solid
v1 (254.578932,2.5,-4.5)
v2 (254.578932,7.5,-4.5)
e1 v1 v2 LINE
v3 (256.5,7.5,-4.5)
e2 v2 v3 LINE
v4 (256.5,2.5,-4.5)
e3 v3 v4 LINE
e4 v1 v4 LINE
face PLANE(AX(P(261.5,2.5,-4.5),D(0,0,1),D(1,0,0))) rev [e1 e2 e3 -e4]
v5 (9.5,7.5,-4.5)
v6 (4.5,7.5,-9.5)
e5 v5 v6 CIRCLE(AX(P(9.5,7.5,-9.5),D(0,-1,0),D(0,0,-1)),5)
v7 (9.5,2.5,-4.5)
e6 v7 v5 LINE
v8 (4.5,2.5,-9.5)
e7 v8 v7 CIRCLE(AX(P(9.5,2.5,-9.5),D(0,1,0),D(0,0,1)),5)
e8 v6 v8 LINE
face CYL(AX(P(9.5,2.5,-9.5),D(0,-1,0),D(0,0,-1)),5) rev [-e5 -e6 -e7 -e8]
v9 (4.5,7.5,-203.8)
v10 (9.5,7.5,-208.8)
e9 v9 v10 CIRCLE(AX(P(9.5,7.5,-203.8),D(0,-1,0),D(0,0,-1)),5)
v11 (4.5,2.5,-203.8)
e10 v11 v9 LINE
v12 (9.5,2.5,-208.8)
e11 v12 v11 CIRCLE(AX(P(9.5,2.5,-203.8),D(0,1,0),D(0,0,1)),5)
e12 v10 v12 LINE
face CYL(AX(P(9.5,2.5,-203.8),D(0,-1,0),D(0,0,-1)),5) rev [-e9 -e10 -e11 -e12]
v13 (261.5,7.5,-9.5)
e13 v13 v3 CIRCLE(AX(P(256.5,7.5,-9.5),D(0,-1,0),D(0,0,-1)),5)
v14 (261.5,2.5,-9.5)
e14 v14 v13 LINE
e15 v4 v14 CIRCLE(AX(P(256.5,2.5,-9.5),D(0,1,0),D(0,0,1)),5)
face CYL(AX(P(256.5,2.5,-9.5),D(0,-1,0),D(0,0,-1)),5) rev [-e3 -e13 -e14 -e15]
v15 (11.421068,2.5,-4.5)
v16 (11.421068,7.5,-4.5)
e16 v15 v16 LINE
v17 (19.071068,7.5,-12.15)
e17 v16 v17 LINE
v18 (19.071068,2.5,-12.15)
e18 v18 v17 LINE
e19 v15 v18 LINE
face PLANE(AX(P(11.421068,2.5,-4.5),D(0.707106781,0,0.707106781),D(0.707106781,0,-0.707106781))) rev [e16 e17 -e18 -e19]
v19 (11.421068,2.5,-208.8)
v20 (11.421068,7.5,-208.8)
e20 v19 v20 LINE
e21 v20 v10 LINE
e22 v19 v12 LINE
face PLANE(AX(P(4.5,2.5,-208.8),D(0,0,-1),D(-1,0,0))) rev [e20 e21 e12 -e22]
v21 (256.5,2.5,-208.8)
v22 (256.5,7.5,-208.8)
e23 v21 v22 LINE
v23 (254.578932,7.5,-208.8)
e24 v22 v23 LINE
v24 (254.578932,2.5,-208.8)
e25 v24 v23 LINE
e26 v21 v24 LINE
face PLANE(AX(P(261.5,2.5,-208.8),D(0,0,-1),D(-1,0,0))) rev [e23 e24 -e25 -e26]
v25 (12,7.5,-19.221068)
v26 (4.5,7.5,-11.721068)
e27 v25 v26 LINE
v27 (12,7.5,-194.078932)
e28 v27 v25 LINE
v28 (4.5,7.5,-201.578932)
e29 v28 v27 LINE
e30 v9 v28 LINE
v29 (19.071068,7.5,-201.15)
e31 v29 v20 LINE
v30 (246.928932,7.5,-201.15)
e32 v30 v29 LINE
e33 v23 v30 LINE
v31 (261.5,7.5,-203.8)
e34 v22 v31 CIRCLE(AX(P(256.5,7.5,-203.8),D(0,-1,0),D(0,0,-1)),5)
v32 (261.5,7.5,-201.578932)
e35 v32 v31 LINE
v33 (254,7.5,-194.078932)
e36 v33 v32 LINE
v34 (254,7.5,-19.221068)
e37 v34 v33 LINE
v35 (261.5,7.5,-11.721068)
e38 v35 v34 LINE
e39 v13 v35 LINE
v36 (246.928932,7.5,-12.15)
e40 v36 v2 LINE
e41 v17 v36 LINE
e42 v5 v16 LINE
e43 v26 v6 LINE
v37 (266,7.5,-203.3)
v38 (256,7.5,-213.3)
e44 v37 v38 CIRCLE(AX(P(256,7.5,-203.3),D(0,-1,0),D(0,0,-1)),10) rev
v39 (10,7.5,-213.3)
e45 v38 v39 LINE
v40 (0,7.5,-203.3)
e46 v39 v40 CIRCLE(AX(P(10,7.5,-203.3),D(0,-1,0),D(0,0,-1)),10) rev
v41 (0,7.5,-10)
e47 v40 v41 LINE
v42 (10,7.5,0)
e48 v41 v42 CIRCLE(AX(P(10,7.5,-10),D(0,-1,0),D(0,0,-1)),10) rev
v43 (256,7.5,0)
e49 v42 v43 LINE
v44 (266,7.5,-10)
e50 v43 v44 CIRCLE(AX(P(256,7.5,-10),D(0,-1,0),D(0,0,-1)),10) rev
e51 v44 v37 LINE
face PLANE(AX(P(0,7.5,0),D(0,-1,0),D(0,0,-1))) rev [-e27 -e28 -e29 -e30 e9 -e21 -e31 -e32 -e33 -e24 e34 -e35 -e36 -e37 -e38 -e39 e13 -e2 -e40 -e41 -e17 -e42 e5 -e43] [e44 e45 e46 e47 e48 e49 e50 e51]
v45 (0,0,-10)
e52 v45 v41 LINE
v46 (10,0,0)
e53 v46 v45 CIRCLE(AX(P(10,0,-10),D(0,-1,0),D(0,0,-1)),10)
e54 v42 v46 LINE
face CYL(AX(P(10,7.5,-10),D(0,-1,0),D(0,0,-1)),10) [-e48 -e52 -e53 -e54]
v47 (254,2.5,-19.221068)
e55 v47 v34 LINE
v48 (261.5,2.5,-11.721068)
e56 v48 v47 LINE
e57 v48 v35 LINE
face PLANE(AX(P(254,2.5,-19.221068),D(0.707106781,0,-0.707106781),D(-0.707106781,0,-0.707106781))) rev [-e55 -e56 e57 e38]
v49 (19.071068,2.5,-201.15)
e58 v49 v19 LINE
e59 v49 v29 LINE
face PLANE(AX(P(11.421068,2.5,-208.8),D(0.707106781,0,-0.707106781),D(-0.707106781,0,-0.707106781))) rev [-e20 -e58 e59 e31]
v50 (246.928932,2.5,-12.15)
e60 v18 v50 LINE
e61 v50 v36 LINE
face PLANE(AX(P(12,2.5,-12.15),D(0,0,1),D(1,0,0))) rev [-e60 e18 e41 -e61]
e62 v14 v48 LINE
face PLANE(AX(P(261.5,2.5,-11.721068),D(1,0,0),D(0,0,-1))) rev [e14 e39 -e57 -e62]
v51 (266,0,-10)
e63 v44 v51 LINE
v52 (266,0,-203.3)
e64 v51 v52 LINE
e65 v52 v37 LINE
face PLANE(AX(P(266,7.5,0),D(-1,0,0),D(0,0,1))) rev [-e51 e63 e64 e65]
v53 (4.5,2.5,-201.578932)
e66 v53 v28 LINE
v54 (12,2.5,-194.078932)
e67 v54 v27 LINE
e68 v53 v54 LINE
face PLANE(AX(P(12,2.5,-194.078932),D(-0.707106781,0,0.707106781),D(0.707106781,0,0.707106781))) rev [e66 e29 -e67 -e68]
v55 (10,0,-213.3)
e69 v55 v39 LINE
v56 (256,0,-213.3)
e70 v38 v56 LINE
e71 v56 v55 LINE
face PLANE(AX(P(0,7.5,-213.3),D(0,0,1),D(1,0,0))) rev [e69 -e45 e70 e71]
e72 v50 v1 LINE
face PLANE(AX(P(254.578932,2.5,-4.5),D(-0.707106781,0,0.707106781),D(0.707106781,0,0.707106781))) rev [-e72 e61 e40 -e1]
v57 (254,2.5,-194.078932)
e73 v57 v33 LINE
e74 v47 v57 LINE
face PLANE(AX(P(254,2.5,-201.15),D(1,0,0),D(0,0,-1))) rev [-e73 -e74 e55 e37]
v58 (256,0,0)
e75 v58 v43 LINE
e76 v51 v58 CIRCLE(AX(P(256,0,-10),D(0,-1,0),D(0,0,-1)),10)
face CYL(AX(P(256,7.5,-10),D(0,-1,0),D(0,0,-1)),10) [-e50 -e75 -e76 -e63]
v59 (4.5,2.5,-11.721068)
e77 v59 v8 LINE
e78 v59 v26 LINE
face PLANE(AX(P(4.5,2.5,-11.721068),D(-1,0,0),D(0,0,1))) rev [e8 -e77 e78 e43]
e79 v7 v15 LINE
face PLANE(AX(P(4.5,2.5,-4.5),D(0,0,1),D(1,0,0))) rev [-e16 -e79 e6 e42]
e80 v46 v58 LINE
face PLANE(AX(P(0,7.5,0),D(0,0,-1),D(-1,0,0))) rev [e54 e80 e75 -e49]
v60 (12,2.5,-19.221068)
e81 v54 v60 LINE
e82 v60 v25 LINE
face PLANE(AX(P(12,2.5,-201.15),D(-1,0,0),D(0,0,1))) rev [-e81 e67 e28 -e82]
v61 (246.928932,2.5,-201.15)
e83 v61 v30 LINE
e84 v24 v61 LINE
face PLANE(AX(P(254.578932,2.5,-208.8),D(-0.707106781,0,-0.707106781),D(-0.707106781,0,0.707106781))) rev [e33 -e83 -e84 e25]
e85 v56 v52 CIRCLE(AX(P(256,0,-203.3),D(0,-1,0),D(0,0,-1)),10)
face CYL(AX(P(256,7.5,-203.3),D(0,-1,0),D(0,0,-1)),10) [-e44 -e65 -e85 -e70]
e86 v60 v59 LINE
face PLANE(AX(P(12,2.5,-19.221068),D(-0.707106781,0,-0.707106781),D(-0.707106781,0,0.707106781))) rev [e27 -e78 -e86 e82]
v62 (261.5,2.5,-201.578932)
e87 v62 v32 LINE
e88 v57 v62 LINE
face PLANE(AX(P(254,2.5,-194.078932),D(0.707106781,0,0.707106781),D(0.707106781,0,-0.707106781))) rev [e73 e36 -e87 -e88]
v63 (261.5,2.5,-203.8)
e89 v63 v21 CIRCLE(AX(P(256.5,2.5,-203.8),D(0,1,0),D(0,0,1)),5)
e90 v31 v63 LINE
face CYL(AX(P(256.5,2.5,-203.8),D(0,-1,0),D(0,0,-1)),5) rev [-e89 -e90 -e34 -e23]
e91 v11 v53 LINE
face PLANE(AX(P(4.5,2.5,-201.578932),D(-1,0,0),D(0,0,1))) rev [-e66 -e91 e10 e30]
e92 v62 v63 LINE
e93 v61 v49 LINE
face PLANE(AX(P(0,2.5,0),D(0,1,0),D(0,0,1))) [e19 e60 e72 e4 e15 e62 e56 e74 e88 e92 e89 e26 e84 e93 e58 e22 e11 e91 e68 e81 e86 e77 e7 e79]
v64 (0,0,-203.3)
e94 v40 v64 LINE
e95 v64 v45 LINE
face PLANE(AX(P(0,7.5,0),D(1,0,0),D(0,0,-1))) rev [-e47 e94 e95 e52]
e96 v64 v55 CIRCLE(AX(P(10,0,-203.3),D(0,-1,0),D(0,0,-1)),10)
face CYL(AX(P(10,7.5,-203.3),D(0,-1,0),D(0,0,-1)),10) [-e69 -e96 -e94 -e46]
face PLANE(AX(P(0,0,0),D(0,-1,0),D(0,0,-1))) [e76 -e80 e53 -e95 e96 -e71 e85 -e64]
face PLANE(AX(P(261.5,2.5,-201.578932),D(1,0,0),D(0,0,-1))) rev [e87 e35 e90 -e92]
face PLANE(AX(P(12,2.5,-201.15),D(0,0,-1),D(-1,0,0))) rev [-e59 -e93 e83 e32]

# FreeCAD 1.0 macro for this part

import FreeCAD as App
import Part
import Sketcher

V = App.Vector


def edges_at(feature, points):
    """Names of the edges that pass closest to the given points."""
    edges = feature.Shape.Edges
    near = lambda p: min(range(len(edges)), key=lambda i: edges[i].distToShape(Part.Vertex(*p))[0])
    return sorted({f"Edge{near(p) + 1}" for p in points})

doc = App.newDocument("Part")
body = doc.addObject("PartDesign::Body", "Body")

# Sketch on XZ plane
sketch1 = body.newObject("Sketcher::SketchObject", "Sketch")
sketch1.AttachmentSupport = (doc.getObject("XZ_Plane"), [""])
sketch1.MapMode = "FlatFace"
sketch1.addGeometry([
    Part.LineSegment(V(0, -213.3, 0), V(0, 0, 0)),
    Part.LineSegment(V(0, 0, 0), V(266, 0, 0)),
    Part.LineSegment(V(266, 0, 0), V(266, -213.3, 0)),
    Part.LineSegment(V(266, -213.3, 0), V(0, -213.3, 0)),
], False)
sketch1.addConstraint([
    Sketcher.Constraint("Coincident", 0, 2, 1, 1),
    Sketcher.Constraint("Coincident", 1, 2, 2, 1),
    Sketcher.Constraint("Coincident", 2, 2, 3, 1),
    Sketcher.Constraint("Coincident", 3, 2, 0, 1),
    Sketcher.Constraint("Vertical", 0),
    Sketcher.Constraint("Horizontal", 1),
    Sketcher.Constraint("Vertical", 2),
    Sketcher.Constraint("Horizontal", 3),
    Sketcher.Constraint("Coincident", 0, 2, -1, 1),
    Sketcher.Constraint("DistanceX", 1, 1, 1, 2, 266.0),
    Sketcher.Constraint("DistanceY", 0, 1, 0, 2, 213.3),
])
pad1 = body.newObject("PartDesign::Pad", "Pad")
pad1.Profile = sketch1
pad1.Length = 7.5
pad1.Reversed = True

# Sketch on XZ plane
sketch2 = body.newObject("Sketcher::SketchObject", "Sketch001")
sketch2.AttachmentSupport = (doc.getObject("XZ_Plane"), [""])
sketch2.MapMode = "FlatFace"
sketch2.AttachmentOffset = App.Placement(V(0, 0, -7.5), App.Rotation())
sketch2.addGeometry([
    Part.LineSegment(V(12, -201.15, 0), V(12, -12.15, 0)),
    Part.LineSegment(V(12, -12.15, 0), V(254, -12.15, 0)),
    Part.LineSegment(V(254, -12.15, 0), V(254, -201.15, 0)),
    Part.LineSegment(V(254, -201.15, 0), V(12, -201.15, 0)),
], False)
sketch2.addConstraint([
    Sketcher.Constraint("Coincident", 0, 2, 1, 1),
    Sketcher.Constraint("Coincident", 1, 2, 2, 1),
    Sketcher.Constraint("Coincident", 2, 2, 3, 1),
    Sketcher.Constraint("Coincident", 3, 2, 0, 1),
    Sketcher.Constraint("Vertical", 0),
    Sketcher.Constraint("Horizontal", 1),
    Sketcher.Constraint("Vertical", 2),
    Sketcher.Constraint("Horizontal", 3),
    Sketcher.Constraint("DistanceX", 1, 1, 1, 2, 242.0),
    Sketcher.Constraint("DistanceY", 0, 1, 0, 2, 189.0),
    Sketcher.Constraint("DistanceX", -1, 1, 0, 2, 12.0),
    Sketcher.Constraint("DistanceY", 0, 2, -1, 1, 12.15),
])
pocket1 = body.newObject("PartDesign::Pocket", "Pocket")
pocket1.Profile = sketch2
pocket1.Length = 5
pocket1.Reversed = True

# Sketch on XZ plane
sketch3 = body.newObject("Sketcher::SketchObject", "Sketch002")
sketch3.AttachmentSupport = (doc.getObject("XZ_Plane"), [""])
sketch3.MapMode = "FlatFace"
sketch3.AttachmentOffset = App.Placement(V(0, 0, -7.5), App.Rotation())
sketch3.addGeometry([
    Part.LineSegment(V(4.5, -201.578932, 0), V(12, -194.078932, 0)),  # 0
    Part.LineSegment(V(12, -194.078932, 0), V(19.071068, -201.15, 0)),  # 1
    Part.LineSegment(V(19.071068, -201.15, 0), V(11.421068, -208.8, 0)),  # 2
    Part.LineSegment(V(11.421068, -208.8, 0), V(4.5, -208.8, 0)),  # 3
    Part.LineSegment(V(4.5, -208.8, 0), V(4.5, -201.578932, 0)),  # 4
    Part.LineSegment(V(19.071068, -12.15, 0), V(12, -19.221068, 0)),  # 5
    Part.LineSegment(V(12, -19.221068, 0), V(4.5, -11.721068, 0)),  # 6
    Part.LineSegment(V(4.5, -11.721068, 0), V(4.5, -4.5, 0)),  # 7
    Part.LineSegment(V(4.5, -4.5, 0), V(11.421068, -4.5, 0)),  # 8
    Part.LineSegment(V(11.421068, -4.5, 0), V(19.071068, -12.15, 0)),  # 9
    Part.LineSegment(V(261.5, -11.721068, 0), V(254, -19.221068, 0)),  # 10
    Part.LineSegment(V(254, -19.221068, 0), V(246.928932, -12.15, 0)),  # 11
    Part.LineSegment(V(246.928932, -12.15, 0), V(254.578932, -4.5, 0)),  # 12
    Part.LineSegment(V(254.578932, -4.5, 0), V(261.5, -4.5, 0)),  # 13
    Part.LineSegment(V(261.5, -4.5, 0), V(261.5, -11.721068, 0)),  # 14
    Part.LineSegment(V(246.928932, -201.15, 0), V(254, -194.078932, 0)),  # 15
    Part.LineSegment(V(254, -194.078932, 0), V(261.5, -201.578932, 0)),  # 16
    Part.LineSegment(V(261.5, -201.578932, 0), V(261.5, -208.8, 0)),  # 17
    Part.LineSegment(V(261.5, -208.8, 0), V(254.578932, -208.8, 0)),  # 18
    Part.LineSegment(V(254.578932, -208.8, 0), V(246.928932, -201.15, 0)),  # 19
], False)
sketch3.addConstraint([
    Sketcher.Constraint("Coincident", 0, 2, 1, 1),
    Sketcher.Constraint("Coincident", 1, 2, 2, 1),
    Sketcher.Constraint("Coincident", 2, 2, 3, 1),
    Sketcher.Constraint("Coincident", 3, 2, 4, 1),
    Sketcher.Constraint("Coincident", 4, 2, 0, 1),
    Sketcher.Constraint("Coincident", 5, 2, 6, 1),
    Sketcher.Constraint("Coincident", 6, 2, 7, 1),
    Sketcher.Constraint("Coincident", 7, 2, 8, 1),
    Sketcher.Constraint("Coincident", 8, 2, 9, 1),
    Sketcher.Constraint("Coincident", 9, 2, 5, 1),
    Sketcher.Constraint("Coincident", 10, 2, 11, 1),
    Sketcher.Constraint("Coincident", 11, 2, 12, 1),
    Sketcher.Constraint("Coincident", 12, 2, 13, 1),
    Sketcher.Constraint("Coincident", 13, 2, 14, 1),
    Sketcher.Constraint("Coincident", 14, 2, 10, 1),
    Sketcher.Constraint("Coincident", 15, 2, 16, 1),
    Sketcher.Constraint("Coincident", 16, 2, 17, 1),
    Sketcher.Constraint("Coincident", 17, 2, 18, 1),
    Sketcher.Constraint("Coincident", 18, 2, 19, 1),
    Sketcher.Constraint("Coincident", 19, 2, 15, 1),
    Sketcher.Constraint("Horizontal", 3),
    Sketcher.Constraint("Vertical", 4),
    Sketcher.Constraint("Vertical", 7),
    Sketcher.Constraint("Horizontal", 8),
    Sketcher.Constraint("Horizontal", 13),
    Sketcher.Constraint("Vertical", 14),
    Sketcher.Constraint("Vertical", 17),
    Sketcher.Constraint("Horizontal", 18),
    Sketcher.Constraint("Perpendicular", 0, 1),
    Sketcher.Constraint("Perpendicular", 1, 2),
    Sketcher.Constraint("Parallel", 2, 5),
    Sketcher.Constraint("Perpendicular", 5, 6),
    Sketcher.Constraint("Parallel", 6, 9),
    Sketcher.Constraint("Perpendicular", 9, 10),
    Sketcher.Constraint("Perpendicular", 10, 11),
    Sketcher.Constraint("Perpendicular", 11, 12),
    Sketcher.Constraint("Parallel", 12, 15),
    Sketcher.Constraint("Perpendicular", 15, 16),
    Sketcher.Constraint("Parallel", 16, 19),
    Sketcher.Constraint("Horizontal", 5, 2, 10, 2),
    Sketcher.Constraint("Horizontal", 9, 2, 11, 2),
    Sketcher.Constraint("Horizontal", 8, 2, 12, 2),
    Sketcher.Constraint("Horizontal", 6, 2, 14, 2),
    Sketcher.Constraint("Horizontal", 0, 2, 15, 2),
    Sketcher.Constraint("Horizontal", 4, 2, 16, 2),
    Sketcher.Constraint("Horizontal", 3, 2, 17, 2),
    Sketcher.Constraint("Horizontal", 1, 2, 19, 2),
    Sketcher.Constraint("Vertical", 0, 2, 5, 2),
    Sketcher.Constraint("Vertical", 4, 2, 6, 2),
    Sketcher.Constraint("Vertical", 2, 2, 8, 2),
    Sketcher.Constraint("Vertical", 1, 2, 9, 2),
    Sketcher.Constraint("Vertical", 10, 2, 15, 2),
    Sketcher.Constraint("Vertical", 14, 2, 16, 2),
    Sketcher.Constraint("Distance", 1, 10.0),
    Sketcher.Constraint("DistanceX", -1, 1, 0, 2, 12.0),
    Sketcher.Constraint("DistanceX", -1, 1, 10, 2, 254.0),
    Sketcher.Constraint("DistanceY", 2, 2, -1, 1, 208.8),
    Sketcher.Constraint("DistanceX", -1, 1, 3, 2, 4.5),
    Sketcher.Constraint("DistanceY", 7, 2, -1, 1, 4.5),
    Sketcher.Constraint("DistanceY", 1, 2, -1, 1, 201.15),
])
pocket2 = body.newObject("PartDesign::Pocket", "Pocket001")
pocket2.Profile = sketch3
pocket2.Length = 5
pocket2.Reversed = True
doc.recompute()

fillet = body.newObject("PartDesign::Fillet", "Fillet")
fillet.Base = (pocket2, edges_at(pocket2, [
    (4.5, 5, -208.8),
    (4.5, 5, -4.5),
    (261.5, 5, -4.5),
    (261.5, 5, -208.8),
]))
fillet.Radius = 5
doc.recompute()

fillet2 = body.newObject("PartDesign::Fillet", "Fillet001")
fillet2.Base = (fillet, edges_at(fillet, [
    (0, 3.75, -213.3),
    (266, 3.75, -213.3),
    (266, 3.75, 0),
    (0, 3.75, 0),
]))
fillet2.Radius = 10

doc.recompute()
